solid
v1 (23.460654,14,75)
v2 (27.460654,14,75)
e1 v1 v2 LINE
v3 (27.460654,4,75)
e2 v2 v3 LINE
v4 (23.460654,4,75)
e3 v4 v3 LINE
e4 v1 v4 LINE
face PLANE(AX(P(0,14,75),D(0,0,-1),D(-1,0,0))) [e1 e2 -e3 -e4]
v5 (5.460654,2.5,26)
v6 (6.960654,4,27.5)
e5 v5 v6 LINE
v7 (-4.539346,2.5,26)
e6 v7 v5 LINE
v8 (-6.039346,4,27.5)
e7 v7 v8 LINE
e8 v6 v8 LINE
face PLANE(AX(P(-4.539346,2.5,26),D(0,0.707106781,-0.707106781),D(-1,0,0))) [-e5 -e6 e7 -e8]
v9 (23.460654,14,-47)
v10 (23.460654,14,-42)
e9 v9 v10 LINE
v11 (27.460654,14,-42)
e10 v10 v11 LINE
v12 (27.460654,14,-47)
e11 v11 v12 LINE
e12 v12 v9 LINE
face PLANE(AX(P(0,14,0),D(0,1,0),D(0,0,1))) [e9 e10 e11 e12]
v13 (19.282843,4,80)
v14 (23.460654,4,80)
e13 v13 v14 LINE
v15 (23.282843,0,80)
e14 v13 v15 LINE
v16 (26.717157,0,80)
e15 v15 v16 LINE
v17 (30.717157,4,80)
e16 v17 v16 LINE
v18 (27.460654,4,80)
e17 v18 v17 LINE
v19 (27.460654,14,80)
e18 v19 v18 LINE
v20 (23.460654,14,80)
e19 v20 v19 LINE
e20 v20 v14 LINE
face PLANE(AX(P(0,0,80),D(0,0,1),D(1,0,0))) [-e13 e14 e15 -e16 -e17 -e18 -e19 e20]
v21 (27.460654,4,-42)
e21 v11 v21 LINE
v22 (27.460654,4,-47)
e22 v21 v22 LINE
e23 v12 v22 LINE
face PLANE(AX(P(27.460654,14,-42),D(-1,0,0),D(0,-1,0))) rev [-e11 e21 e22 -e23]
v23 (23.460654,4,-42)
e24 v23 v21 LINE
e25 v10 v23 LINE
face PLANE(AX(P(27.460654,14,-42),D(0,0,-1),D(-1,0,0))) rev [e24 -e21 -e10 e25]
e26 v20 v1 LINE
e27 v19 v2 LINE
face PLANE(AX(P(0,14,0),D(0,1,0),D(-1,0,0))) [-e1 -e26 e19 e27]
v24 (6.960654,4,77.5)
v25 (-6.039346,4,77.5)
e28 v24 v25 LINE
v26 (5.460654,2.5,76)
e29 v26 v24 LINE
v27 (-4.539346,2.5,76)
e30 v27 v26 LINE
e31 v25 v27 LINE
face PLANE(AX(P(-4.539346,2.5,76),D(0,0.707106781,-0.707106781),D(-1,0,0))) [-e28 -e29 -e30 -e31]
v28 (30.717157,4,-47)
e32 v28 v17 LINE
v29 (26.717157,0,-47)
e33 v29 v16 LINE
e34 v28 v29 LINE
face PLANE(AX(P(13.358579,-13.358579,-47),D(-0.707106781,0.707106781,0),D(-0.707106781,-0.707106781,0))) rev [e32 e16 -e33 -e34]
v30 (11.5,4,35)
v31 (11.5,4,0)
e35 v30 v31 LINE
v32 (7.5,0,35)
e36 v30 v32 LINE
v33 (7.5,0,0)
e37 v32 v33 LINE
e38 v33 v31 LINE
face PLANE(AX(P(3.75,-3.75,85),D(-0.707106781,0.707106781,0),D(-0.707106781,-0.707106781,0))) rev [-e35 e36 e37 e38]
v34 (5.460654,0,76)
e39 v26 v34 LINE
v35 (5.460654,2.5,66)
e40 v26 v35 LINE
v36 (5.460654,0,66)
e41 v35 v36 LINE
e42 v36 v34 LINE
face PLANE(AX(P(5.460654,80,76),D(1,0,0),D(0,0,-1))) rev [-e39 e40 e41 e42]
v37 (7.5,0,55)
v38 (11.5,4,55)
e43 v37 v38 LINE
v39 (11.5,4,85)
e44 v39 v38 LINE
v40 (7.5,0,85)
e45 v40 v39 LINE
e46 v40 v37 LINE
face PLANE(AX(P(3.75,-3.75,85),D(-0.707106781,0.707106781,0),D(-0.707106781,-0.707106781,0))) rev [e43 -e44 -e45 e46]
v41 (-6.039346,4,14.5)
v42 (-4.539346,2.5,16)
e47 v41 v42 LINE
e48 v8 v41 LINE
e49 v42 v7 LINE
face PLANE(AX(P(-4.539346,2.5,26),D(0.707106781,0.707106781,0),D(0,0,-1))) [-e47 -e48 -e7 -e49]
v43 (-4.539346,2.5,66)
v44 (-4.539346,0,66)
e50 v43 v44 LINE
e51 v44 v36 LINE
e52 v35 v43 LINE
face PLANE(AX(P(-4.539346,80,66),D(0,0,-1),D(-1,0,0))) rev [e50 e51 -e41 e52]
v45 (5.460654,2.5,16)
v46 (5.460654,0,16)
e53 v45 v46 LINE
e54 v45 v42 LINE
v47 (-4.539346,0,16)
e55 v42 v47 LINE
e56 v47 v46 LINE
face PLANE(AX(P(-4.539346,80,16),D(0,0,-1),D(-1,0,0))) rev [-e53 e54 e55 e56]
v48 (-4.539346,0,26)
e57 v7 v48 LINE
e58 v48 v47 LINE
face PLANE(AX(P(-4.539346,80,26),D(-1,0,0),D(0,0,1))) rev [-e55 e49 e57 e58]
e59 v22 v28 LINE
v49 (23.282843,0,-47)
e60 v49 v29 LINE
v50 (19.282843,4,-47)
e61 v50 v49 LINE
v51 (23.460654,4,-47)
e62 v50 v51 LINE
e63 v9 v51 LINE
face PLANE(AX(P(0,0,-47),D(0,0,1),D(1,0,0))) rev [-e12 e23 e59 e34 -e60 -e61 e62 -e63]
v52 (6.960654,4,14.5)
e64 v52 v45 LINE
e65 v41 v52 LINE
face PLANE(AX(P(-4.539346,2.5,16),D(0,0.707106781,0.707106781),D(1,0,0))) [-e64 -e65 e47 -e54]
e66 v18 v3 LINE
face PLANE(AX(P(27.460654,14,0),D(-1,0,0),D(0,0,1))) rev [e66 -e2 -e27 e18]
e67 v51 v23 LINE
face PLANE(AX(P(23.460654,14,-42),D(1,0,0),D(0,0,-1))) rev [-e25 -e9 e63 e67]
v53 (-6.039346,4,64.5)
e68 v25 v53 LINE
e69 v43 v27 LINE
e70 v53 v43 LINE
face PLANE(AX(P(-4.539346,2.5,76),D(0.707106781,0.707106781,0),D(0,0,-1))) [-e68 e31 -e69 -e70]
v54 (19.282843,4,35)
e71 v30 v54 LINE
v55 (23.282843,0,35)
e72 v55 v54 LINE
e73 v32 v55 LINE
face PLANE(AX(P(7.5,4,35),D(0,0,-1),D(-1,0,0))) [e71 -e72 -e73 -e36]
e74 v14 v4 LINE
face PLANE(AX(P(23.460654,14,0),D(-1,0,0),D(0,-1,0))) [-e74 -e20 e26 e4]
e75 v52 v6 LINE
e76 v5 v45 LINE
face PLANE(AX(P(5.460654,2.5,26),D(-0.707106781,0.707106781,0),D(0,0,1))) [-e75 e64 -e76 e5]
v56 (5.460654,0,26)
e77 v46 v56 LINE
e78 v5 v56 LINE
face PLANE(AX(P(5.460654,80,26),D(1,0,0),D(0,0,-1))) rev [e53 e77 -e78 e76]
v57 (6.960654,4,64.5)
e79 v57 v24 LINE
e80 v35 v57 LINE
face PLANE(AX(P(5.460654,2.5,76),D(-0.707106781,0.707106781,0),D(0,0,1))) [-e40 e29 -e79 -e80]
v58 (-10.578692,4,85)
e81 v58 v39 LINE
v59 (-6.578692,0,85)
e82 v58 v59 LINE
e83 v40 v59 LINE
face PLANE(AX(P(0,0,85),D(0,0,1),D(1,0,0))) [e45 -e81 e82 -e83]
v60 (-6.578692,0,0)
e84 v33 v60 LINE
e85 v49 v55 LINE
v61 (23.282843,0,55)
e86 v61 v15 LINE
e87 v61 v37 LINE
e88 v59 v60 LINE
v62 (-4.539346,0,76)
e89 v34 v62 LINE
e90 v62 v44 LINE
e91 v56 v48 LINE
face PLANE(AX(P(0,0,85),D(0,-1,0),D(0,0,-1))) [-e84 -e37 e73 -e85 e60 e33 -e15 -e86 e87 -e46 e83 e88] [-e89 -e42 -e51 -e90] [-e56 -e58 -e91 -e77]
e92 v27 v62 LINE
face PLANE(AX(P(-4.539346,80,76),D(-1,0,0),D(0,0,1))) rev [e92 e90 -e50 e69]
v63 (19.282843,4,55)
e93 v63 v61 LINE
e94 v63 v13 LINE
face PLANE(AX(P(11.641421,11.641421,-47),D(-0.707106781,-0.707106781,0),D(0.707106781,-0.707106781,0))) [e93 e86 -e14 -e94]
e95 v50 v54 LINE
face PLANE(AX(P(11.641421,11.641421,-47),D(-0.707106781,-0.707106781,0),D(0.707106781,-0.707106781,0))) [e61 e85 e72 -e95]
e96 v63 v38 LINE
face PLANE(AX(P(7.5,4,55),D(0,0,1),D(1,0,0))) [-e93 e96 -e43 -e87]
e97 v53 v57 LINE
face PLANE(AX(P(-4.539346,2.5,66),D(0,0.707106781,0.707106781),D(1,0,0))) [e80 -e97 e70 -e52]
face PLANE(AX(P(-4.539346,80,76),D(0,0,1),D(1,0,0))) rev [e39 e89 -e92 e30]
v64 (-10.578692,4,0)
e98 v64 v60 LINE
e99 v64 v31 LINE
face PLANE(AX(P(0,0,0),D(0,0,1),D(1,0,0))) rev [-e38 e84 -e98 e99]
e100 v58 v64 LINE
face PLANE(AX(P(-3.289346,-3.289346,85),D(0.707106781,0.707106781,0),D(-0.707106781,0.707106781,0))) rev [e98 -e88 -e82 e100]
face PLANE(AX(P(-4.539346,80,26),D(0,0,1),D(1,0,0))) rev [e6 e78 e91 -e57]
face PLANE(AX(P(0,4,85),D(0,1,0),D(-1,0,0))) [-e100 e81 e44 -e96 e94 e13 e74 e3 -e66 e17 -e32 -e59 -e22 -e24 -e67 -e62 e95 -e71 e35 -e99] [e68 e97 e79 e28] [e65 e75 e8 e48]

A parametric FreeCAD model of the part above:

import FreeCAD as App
import Part
import Sketcher

V = App.Vector


def edges_at(feature, points):
    """Names of the edges that pass closest to the given points."""
    edges = feature.Shape.Edges
    near = lambda p: min(range(len(edges)), key=lambda i: edges[i].distToShape(Part.Vertex(*p))[0])
    return sorted({f"Edge{near(p) + 1}" for p in points})

doc = App.newDocument("Part")
params = doc.addObject("Spreadsheet::Sheet", "Params")
for row, (alias, value) in enumerate([
    ("pad1_length", "85 mm"),
    ("sketch2_width", "10 mm"),
    ("pocket1_length", "80 mm"),
    ("pad2_length", "80 mm"),
    ("pad2_length2", "47 mm"),
    ("sketch4_height", "20 mm"),
    ("pad3_length", "4 mm"),
    ("sketch5_width", "4 mm"),
    ("sketch5_height", "5 mm"),
    ("pad4_length", "10 mm"),
    ("sketch6_width", "4 mm"),
    ("sketch6_height", "5 mm"),
    ("pad5_length", "10 mm"),
    ("chamfer_size", "1.5 mm"),
], start=1):
    params.set(f"A{row}", alias)
    params.set(f"B{row}", "=" + value)
    params.setAlias(f"B{row}", alias)

body = doc.addObject("PartDesign::Body", "Body")

# Sketch on XY plane
sketch1 = body.newObject("Sketcher::SketchObject", "Sketch")
sketch1.AttachmentSupport = (doc.getObject("XY_Plane"), [""])
sketch1.MapMode = "FlatFace"
sketch1.addGeometry([
    Part.LineSegment(V(8, 0, 0), V(12, 4, 0)),
    Part.LineSegment(V(12, 4, 0), V(-11, 4, 0)),
    Part.LineSegment(V(-11, 4, 0), V(-7, 0, 0)),
    Part.LineSegment(V(-7, 0, 0), V(8, 0, 0)),
], False)
sketch1.addConstraint([
    Sketcher.Constraint("Coincident", 0, 2, 1, 1),
    Sketcher.Constraint("Coincident", 1, 2, 2, 1),
    Sketcher.Constraint("Coincident", 2, 2, 3, 1),
    Sketcher.Constraint("Coincident", 3, 2, 0, 1),
    Sketcher.Constraint("Horizontal", 1),
    Sketcher.Constraint("Horizontal", 3),
    Sketcher.Constraint("PointOnObject", 2, 2, -1),
    Sketcher.Constraint("Perpendicular", 0, 2),
    Sketcher.Constraint("Equal", 0, 2),
    Sketcher.Constraint("DistanceY", -1, 1, 0, 2, 4.0),
    Sketcher.Constraint("DistanceX", -1, 1, 0, 2, 11.5),
    Sketcher.Constraint("DistanceX", 1, 2, 1, 1, 22.078692),
])
pad1 = body.newObject("PartDesign::Pad", "Pad")
pad1.Profile = sketch1
pad1.setExpression("Length", "Params.pad1_length")

# Sketch on XZ plane
sketch2 = body.newObject("Sketcher::SketchObject", "Sketch001")
sketch2.AttachmentSupport = (doc.getObject("XZ_Plane"), [""])
sketch2.MapMode = "FlatFace"
sketch2.addGeometry([
    Part.LineSegment(V(-5, 26, 0), V(-5, 16, 0)),  # 0
    Part.LineSegment(V(-5, 16, 0), V(5, 16, 0)),  # 1
    Part.LineSegment(V(5, 16, 0), V(5, 26, 0)),  # 2
    Part.LineSegment(V(5, 26, 0), V(-5, 26, 0)),  # 3
    Part.LineSegment(V(-5, 76, 0), V(-5, 66, 0)),  # 4
    Part.LineSegment(V(-5, 66, 0), V(5, 66, 0)),  # 5
    Part.LineSegment(V(5, 66, 0), V(5, 76, 0)),  # 6
    Part.LineSegment(V(5, 76, 0), V(-5, 76, 0)),  # 7
], False)
sketch2.addConstraint([
    Sketcher.Constraint("Coincident", 0, 2, 1, 1),
    Sketcher.Constraint("Coincident", 1, 2, 2, 1),
    Sketcher.Constraint("Coincident", 2, 2, 3, 1),
    Sketcher.Constraint("Coincident", 3, 2, 0, 1),
    Sketcher.Constraint("Coincident", 4, 2, 5, 1),
    Sketcher.Constraint("Coincident", 5, 2, 6, 1),
    Sketcher.Constraint("Coincident", 6, 2, 7, 1),
    Sketcher.Constraint("Coincident", 7, 2, 4, 1),
    Sketcher.Constraint("Vertical", 0),
    Sketcher.Constraint("Horizontal", 1),
    Sketcher.Constraint("Vertical", 2),
    Sketcher.Constraint("Horizontal", 3),
    Sketcher.Constraint("Vertical", 4),
    Sketcher.Constraint("Horizontal", 5),
    Sketcher.Constraint("Vertical", 6),
    Sketcher.Constraint("Horizontal", 7),
    Sketcher.Constraint("Vertical", 3, 2, 4, 2),
    Sketcher.Constraint("Vertical", 2, 2, 5, 2),
    Sketcher.Constraint("Equal", 7, 0),
    Sketcher.Constraint("Equal", 2, 4),
    Sketcher.Constraint("DistanceX", 1, 1, 1, 2, 10.0),
    Sketcher.Constraint("DistanceY", -1, 1, 0, 2, 16.0),
    Sketcher.Constraint("DistanceY", -1, 1, 4, 2, 66.0),
    Sketcher.Constraint("DistanceX", 0, 2, -1, 1, 4.539346),
])
sketch2.setExpression("Constraints[20]", "Params.sketch2_width")
pocket1 = body.newObject("PartDesign::Pocket", "Pocket")
pocket1.Profile = sketch2
pocket1.setExpression("Length", "Params.pocket1_length")
body2 = doc.addObject("PartDesign::Body", "Body001")

# Sketch on XY plane
sketch3 = body2.newObject("Sketcher::SketchObject", "Sketch002")
sketch3.AttachmentSupport = (doc.getObject("XY_Plane001"), [""])
sketch3.MapMode = "FlatFace"
sketch3.addGeometry([
    Part.LineSegment(V(19.3, 4, 0), V(23.3, 0, 0)),
    Part.LineSegment(V(23.3, 0, 0), V(26.7, 0, 0)),
    Part.LineSegment(V(26.7, 0, 0), V(30.7, 4, 0)),
    Part.LineSegment(V(30.7, 4, 0), V(19.3, 4, 0)),
], False)
sketch3.addConstraint([
    Sketcher.Constraint("Coincident", 0, 2, 1, 1),
    Sketcher.Constraint("Coincident", 1, 2, 2, 1),
    Sketcher.Constraint("Coincident", 2, 2, 3, 1),
    Sketcher.Constraint("Coincident", 3, 2, 0, 1),
    Sketcher.Constraint("Horizontal", 1),
    Sketcher.Constraint("Horizontal", 3),
    Sketcher.Constraint("PointOnObject", 0, 2, -1),
    Sketcher.Constraint("Perpendicular", 0, 2),
    Sketcher.Constraint("Equal", 0, 2),
    Sketcher.Constraint("DistanceY", -1, 1, 2, 2, 4.0),
    Sketcher.Constraint("DistanceX", 1, 1, 1, 2, 3.434315),
    Sketcher.Constraint("DistanceX", -1, 1, 0, 2, 23.282843),
])
pad2 = body2.newObject("PartDesign::Pad", "Pad001")
pad2.Profile = sketch3
pad2.Type = "TwoLengths"
pad2.setExpression("Length", "Params.pad2_length")
pad2.setExpression("Length2", "Params.pad2_length2")
body.AllowCompound = True
doc.recompute()

boolean = body.newObject("PartDesign::Boolean", "Boolean")
boolean.Type = "Fuse"
boolean.addObjects([body2])

# Sketch on XZ plane
sketch4 = body.newObject("Sketcher::SketchObject", "Sketch003")
sketch4.AttachmentSupport = (doc.getObject("XZ_Plane"), [""])
sketch4.MapMode = "FlatFace"
sketch4.addGeometry([
    Part.LineSegment(V(8, 55, 0), V(8, 35, 0)),
    Part.LineSegment(V(8, 35, 0), V(23, 35, 0)),
    Part.LineSegment(V(23, 35, 0), V(23, 55, 0)),
    Part.LineSegment(V(23, 55, 0), V(8, 55, 0)),
], False)
sketch4.addConstraint([
    Sketcher.Constraint("Coincident", 0, 2, 1, 1),
    Sketcher.Constraint("Coincident", 1, 2, 2, 1),
    Sketcher.Constraint("Coincident", 2, 2, 3, 1),
    Sketcher.Constraint("Coincident", 3, 2, 0, 1),
    Sketcher.Constraint("Vertical", 0),
    Sketcher.Constraint("Horizontal", 1),
    Sketcher.Constraint("Vertical", 2),
    Sketcher.Constraint("Horizontal", 3),
    Sketcher.Constraint("DistanceY", 0, 2, 0, 1, 20.0),
    Sketcher.Constraint("DistanceY", -1, 1, 0, 2, 35.0),
    Sketcher.Constraint("DistanceX", -1, 1, 0, 2, 7.5),
    Sketcher.Constraint("DistanceX", 1, 1, 1, 2, 15.782843),
])
sketch4.setExpression("Constraints[8]", "Params.sketch4_height")
pad3 = body.newObject("PartDesign::Pad", "Pad002")
pad3.Profile = sketch4
pad3.setExpression("Length", "Params.pad3_length")
pad3.Reversed = True

# Sketch on XZ plane
sketch5 = body.newObject("Sketcher::SketchObject", "Sketch004")
sketch5.AttachmentSupport = (doc.getObject("XZ_Plane"), [""])
sketch5.MapMode = "FlatFace"
sketch5.AttachmentOffset = App.Placement(V(0, 0, -4), App.Rotation())
sketch5.addGeometry([
    Part.LineSegment(V(23.5, 75, 0), V(23.5, 80, 0)),
    Part.LineSegment(V(23.5, 80, 0), V(27.5, 80, 0)),
    Part.LineSegment(V(27.5, 80, 0), V(27.5, 75, 0)),
    Part.LineSegment(V(27.5, 75, 0), V(23.5, 75, 0)),
], False)
sketch5.addConstraint([
    Sketcher.Constraint("Coincident", 0, 2, 1, 1),
    Sketcher.Constraint("Coincident", 1, 2, 2, 1),
    Sketcher.Constraint("Coincident", 2, 2, 3, 1),
    Sketcher.Constraint("Coincident", 3, 2, 0, 1),
    Sketcher.Constraint("Vertical", 0),
    Sketcher.Constraint("Horizontal", 1),
    Sketcher.Constraint("Vertical", 2),
    Sketcher.Constraint("Horizontal", 3),
    Sketcher.Constraint("DistanceX", 1, 1, 1, 2, 4.0),
    Sketcher.Constraint("DistanceY", 0, 1, 0, 2, 5.0),
    Sketcher.Constraint("DistanceY", -1, 1, 0, 2, 80.0),
    Sketcher.Constraint("DistanceX", -1, 1, 0, 2, 23.460654),
])
sketch5.setExpression("Constraints[8]", "Params.sketch5_width")
sketch5.setExpression("Constraints[9]", "Params.sketch5_height")
pad4 = body.newObject("PartDesign::Pad", "Pad003")
pad4.Profile = sketch5
pad4.setExpression("Length", "Params.pad4_length")
pad4.Reversed = True

# Sketch on XZ plane
sketch6 = body.newObject("Sketcher::SketchObject", "Sketch005")
sketch6.AttachmentSupport = (doc.getObject("XZ_Plane"), [""])
sketch6.MapMode = "FlatFace"
sketch6.AttachmentOffset = App.Placement(V(0, 0, -4), App.Rotation())
sketch6.addGeometry([
    Part.LineSegment(V(23.5, -47, 0), V(23.5, -42, 0)),
    Part.LineSegment(V(23.5, -42, 0), V(27.5, -42, 0)),
    Part.LineSegment(V(27.5, -42, 0), V(27.5, -47, 0)),
    Part.LineSegment(V(27.5, -47, 0), V(23.5, -47, 0)),
], False)
sketch6.addConstraint([
    Sketcher.Constraint("Coincident", 0, 2, 1, 1),
    Sketcher.Constraint("Coincident", 1, 2, 2, 1),
    Sketcher.Constraint("Coincident", 2, 2, 3, 1),
    Sketcher.Constraint("Coincident", 3, 2, 0, 1),
    Sketcher.Constraint("Vertical", 0),
    Sketcher.Constraint("Horizontal", 1),
    Sketcher.Constraint("Vertical", 2),
    Sketcher.Constraint("Horizontal", 3),
    Sketcher.Constraint("DistanceX", 1, 1, 1, 2, 4.0),
    Sketcher.Constraint("DistanceY", 0, 1, 0, 2, 5.0),
    Sketcher.Constraint("DistanceY", 0, 2, -1, 1, 42.0),
    Sketcher.Constraint("DistanceX", -1, 1, 0, 2, 23.460654),
])
sketch6.setExpression("Constraints[8]", "Params.sketch6_width")
sketch6.setExpression("Constraints[9]", "Params.sketch6_height")
pad5 = body.newObject("PartDesign::Pad", "Pad004")
pad5.Profile = sketch6
pad5.setExpression("Length", "Params.pad5_length")
pad5.Reversed = True
doc.recompute()

chamfer = body.newObject("PartDesign::Chamfer", "Chamfer")
chamfer.Base = (pad5, edges_at(pad5, [
    (0.461, 4, 76),
    (-4.539, 4, 71),
    (0.461, 4, 66),
    (5.461, 4, 71),
    (0.461, 4, 26),
    (-4.539, 4, 21),
    (0.461, 4, 16),
    (5.461, 4, 21),
]))
chamfer.setExpression("Size", "Params.chamfer_size")

doc.recompute()
